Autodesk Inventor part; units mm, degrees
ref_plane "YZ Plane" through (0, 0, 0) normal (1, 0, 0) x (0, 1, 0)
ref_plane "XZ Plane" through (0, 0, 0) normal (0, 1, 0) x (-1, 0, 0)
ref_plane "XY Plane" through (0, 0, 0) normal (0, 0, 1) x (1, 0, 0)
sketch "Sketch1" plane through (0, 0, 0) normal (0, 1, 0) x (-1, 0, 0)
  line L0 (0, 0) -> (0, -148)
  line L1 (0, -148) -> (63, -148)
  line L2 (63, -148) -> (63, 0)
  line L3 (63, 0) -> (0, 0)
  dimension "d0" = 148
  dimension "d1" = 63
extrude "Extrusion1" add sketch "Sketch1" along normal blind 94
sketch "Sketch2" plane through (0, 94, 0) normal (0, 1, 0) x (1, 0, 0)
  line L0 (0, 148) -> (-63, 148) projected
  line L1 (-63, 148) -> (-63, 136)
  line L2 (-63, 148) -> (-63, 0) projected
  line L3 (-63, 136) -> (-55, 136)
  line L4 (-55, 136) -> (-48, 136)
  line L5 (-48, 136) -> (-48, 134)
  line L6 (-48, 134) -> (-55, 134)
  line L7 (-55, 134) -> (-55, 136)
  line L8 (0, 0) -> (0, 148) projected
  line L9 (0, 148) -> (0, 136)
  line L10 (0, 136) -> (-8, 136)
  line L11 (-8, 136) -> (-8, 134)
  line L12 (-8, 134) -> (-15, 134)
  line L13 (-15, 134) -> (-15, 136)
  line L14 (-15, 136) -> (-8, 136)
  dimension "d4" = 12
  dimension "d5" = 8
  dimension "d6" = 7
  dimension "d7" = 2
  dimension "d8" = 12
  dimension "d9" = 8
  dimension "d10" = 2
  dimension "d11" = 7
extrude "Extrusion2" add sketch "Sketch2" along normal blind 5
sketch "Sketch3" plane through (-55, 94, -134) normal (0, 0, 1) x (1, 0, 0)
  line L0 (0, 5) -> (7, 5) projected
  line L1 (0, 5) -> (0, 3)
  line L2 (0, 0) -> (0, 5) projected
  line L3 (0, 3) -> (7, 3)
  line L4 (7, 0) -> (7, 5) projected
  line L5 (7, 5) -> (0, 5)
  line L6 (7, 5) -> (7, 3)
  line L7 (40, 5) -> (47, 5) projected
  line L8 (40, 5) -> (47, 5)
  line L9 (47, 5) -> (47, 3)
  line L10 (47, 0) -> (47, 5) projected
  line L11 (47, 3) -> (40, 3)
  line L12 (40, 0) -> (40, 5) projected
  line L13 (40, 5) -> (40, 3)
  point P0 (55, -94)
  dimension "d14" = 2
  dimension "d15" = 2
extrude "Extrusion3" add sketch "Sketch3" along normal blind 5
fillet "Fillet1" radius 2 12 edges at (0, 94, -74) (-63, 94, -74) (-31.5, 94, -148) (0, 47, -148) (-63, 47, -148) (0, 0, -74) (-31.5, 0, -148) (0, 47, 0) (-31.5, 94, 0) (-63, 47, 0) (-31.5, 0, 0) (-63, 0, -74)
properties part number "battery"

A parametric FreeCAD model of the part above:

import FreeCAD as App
import Part
import Sketcher

V = App.Vector
Q = App.Units.Quantity


def edges_at(feature, points):
    """Names of the edges that pass closest to the given points."""
    edges = feature.Shape.Edges
    near = lambda p: min(range(len(edges)), key=lambda i: edges[i].distToShape(Part.Vertex(*p))[0])
    return sorted({f"Edge{near(p) + 1}" for p in points})


def add_polygon(sketch, points):
    """Adds a closed chain of lines whose ends are joined by coincident constraints."""
    first, n = sketch.GeometryCount, len(points)
    for a, b in zip(points, points[1:] + points[:1]):
        sketch.addGeometry(Part.LineSegment(App.Vector(*a, 0), App.Vector(*b, 0)), False)
    for i in range(n):
        sketch.addConstraint(Sketcher.Constraint("Coincident", first + i, 2, first + (i + 1) % n, 1))

doc = App.newDocument("Part")
params = doc.addObject("Spreadsheet::Sheet", "Params")
for row, (alias, value) in enumerate([
    ("sketch1_width", "63 mm"),
    ("sketch1_height", "148 mm"),
    ("pad1_length", "94 mm"),
    ("sketch2_width", "7 mm"),
    ("sketch2_height", "2 mm"),
    ("pad2_length", "5 mm"),
    ("sketch3_height", "2 mm"),
    ("sketch3_width", "7 mm"),
    ("pad3_length", "5 mm"),
    ("fillet_radius", "2 mm"),
], start=1):
    params.set(f"A{row}", alias)
    params.set(f"B{row}", "=" + value)
    params.setAlias(f"B{row}", alias)

body = doc.addObject("PartDesign::Body", "Body")

# Sketch on XZ plane
sketch1 = body.newObject("Sketcher::SketchObject", "Sketch")
sketch1.AttachmentSupport = (doc.getObject("XZ_Plane"), [""])
sketch1.MapMode = "FlatFace"
add_polygon(sketch1, [(-63, 0), (0, 0), (0, -148), (-63, -148)])  # lines 0-3
sketch1.addConstraint([
    Sketcher.Constraint("Horizontal", 0),
    Sketcher.Constraint("Vertical", 1),
    Sketcher.Constraint("Horizontal", 2),
    Sketcher.Constraint("Vertical", 3),
    Sketcher.Constraint("Coincident", 0, 2, -1, 1),
    Sketcher.Constraint("DistanceX", 0, 1, 0, 2, Q("63 mm")),
    Sketcher.Constraint("DistanceY", 1, 2, 1, 1, Q("148 mm")),
])
sketch1.setExpression("Constraints[9]", "Params.sketch1_width")
sketch1.setExpression("Constraints[10]", "Params.sketch1_height")
pad1 = body.newObject("PartDesign::Pad", "Pad")
pad1.Profile = sketch1
pad1.setExpression("Length", "Params.pad1_length")
pad1.Reversed = True

# Sketch on XZ plane
sketch2 = body.newObject("Sketcher::SketchObject", "Sketch001")
sketch2.AttachmentSupport = (doc.getObject("XZ_Plane"), [""])
sketch2.MapMode = "FlatFace"
sketch2.AttachmentOffset = App.Placement(V(0, 0, -94), App.Rotation())
add_polygon(sketch2, [(-48, -136), (-55, -136), (-55, -134), (-48, -134)])  # lines 0-3
add_polygon(sketch2, [(-8, -134), (-8, -136), (-15, -136), (-15, -134)])  # lines 4-7
sketch2.addConstraint([
    Sketcher.Constraint("Horizontal", 0),
    Sketcher.Constraint("Vertical", 1),
    Sketcher.Constraint("Horizontal", 2),
    Sketcher.Constraint("Vertical", 3),
    Sketcher.Constraint("Vertical", 4),
    Sketcher.Constraint("Horizontal", 5),
    Sketcher.Constraint("Vertical", 6),
    Sketcher.Constraint("Horizontal", 7),
    Sketcher.Constraint("Horizontal", 3, 2, 4, 2),
    Sketcher.Constraint("Horizontal", 2, 2, 6, 2),
    Sketcher.Constraint("Equal", 2, 5),
    Sketcher.Constraint("DistanceX", 0, 2, 0, 1, Q("7 mm")),
    Sketcher.Constraint("DistanceY", 1, 1, 1, 2, Q("2 mm")),
    Sketcher.Constraint("DistanceX", 4, 2, -1, 1, Q("8 mm")),
    Sketcher.Constraint("DistanceX", 0, 2, -1, 1, Q("55 mm")),
    Sketcher.Constraint("DistanceY", 0, 2, -1, 1, Q("136 mm")),
])
sketch2.setExpression("Constraints[19]", "Params.sketch2_width")
sketch2.setExpression("Constraints[20]", "Params.sketch2_height")
pad2 = body.newObject("PartDesign::Pad", "Pad001")
pad2.Profile = sketch2
pad2.setExpression("Length", "Params.pad2_length")
pad2.Reversed = True

# Sketch on XY plane
sketch3 = body.newObject("Sketcher::SketchObject", "Sketch002")
sketch3.AttachmentSupport = (doc.getObject("XY_Plane"), [""])
sketch3.MapMode = "FlatFace"
sketch3.AttachmentOffset = App.Placement(V(0, 0, -134), App.Rotation())
add_polygon(sketch3, [(-48, 99), (-55, 99), (-55, 97), (-48, 97)])  # lines 0-3
add_polygon(sketch3, [(-8, 99), (-15, 99), (-15, 97), (-8, 97)])  # lines 4-7
sketch3.addConstraint([
    Sketcher.Constraint("Horizontal", 0),
    Sketcher.Constraint("Vertical", 1),
    Sketcher.Constraint("Horizontal", 2),
    Sketcher.Constraint("Vertical", 3),
    Sketcher.Constraint("Horizontal", 4),
    Sketcher.Constraint("Vertical", 5),
    Sketcher.Constraint("Horizontal", 6),
    Sketcher.Constraint("Vertical", 7),
    Sketcher.Constraint("Horizontal", 3, 2, 4, 2),
    Sketcher.Constraint("Horizontal", 2, 2, 5, 2),
    Sketcher.Constraint("Equal", 2, 4),
    Sketcher.Constraint("DistanceY", 1, 2, 1, 1, Q("2 mm")),
    Sketcher.Constraint("DistanceX", 0, 2, 0, 1, Q("7 mm")),
    Sketcher.Constraint("DistanceX", 0, 2, -1, 1, Q("55 mm")),
    Sketcher.Constraint("DistanceY", -1, 1, 0, 2, Q("99 mm")),
    Sketcher.Constraint("DistanceX", 4, 2, -1, 1, Q("15 mm")),
])
sketch3.setExpression("Constraints[19]", "Params.sketch3_height")
sketch3.setExpression("Constraints[20]", "Params.sketch3_width")
pad3 = body.newObject("PartDesign::Pad", "Pad002")
pad3.Profile = sketch3
pad3.setExpression("Length", "Params.pad3_length")
doc.recompute()

fillet = body.newObject("PartDesign::Fillet", "Fillet")
fillet.Base = (pad3, edges_at(pad3, [
    (0, 94, -74),
    (-63, 94, -74),
    (-31.5, 94, -148),
    (0, 47, -148),
    (-63, 47, -148),
    (0, 0, -74),
    (-31.5, 0, -148),
    (0, 47, 0),
    (-31.5, 94, 0),
    (-63, 47, 0),
    (-31.5, 0, 0),
    (-63, 0, -74),
]))
fillet.setExpression("Radius", "Params.fillet_radius")

doc.recompute()
